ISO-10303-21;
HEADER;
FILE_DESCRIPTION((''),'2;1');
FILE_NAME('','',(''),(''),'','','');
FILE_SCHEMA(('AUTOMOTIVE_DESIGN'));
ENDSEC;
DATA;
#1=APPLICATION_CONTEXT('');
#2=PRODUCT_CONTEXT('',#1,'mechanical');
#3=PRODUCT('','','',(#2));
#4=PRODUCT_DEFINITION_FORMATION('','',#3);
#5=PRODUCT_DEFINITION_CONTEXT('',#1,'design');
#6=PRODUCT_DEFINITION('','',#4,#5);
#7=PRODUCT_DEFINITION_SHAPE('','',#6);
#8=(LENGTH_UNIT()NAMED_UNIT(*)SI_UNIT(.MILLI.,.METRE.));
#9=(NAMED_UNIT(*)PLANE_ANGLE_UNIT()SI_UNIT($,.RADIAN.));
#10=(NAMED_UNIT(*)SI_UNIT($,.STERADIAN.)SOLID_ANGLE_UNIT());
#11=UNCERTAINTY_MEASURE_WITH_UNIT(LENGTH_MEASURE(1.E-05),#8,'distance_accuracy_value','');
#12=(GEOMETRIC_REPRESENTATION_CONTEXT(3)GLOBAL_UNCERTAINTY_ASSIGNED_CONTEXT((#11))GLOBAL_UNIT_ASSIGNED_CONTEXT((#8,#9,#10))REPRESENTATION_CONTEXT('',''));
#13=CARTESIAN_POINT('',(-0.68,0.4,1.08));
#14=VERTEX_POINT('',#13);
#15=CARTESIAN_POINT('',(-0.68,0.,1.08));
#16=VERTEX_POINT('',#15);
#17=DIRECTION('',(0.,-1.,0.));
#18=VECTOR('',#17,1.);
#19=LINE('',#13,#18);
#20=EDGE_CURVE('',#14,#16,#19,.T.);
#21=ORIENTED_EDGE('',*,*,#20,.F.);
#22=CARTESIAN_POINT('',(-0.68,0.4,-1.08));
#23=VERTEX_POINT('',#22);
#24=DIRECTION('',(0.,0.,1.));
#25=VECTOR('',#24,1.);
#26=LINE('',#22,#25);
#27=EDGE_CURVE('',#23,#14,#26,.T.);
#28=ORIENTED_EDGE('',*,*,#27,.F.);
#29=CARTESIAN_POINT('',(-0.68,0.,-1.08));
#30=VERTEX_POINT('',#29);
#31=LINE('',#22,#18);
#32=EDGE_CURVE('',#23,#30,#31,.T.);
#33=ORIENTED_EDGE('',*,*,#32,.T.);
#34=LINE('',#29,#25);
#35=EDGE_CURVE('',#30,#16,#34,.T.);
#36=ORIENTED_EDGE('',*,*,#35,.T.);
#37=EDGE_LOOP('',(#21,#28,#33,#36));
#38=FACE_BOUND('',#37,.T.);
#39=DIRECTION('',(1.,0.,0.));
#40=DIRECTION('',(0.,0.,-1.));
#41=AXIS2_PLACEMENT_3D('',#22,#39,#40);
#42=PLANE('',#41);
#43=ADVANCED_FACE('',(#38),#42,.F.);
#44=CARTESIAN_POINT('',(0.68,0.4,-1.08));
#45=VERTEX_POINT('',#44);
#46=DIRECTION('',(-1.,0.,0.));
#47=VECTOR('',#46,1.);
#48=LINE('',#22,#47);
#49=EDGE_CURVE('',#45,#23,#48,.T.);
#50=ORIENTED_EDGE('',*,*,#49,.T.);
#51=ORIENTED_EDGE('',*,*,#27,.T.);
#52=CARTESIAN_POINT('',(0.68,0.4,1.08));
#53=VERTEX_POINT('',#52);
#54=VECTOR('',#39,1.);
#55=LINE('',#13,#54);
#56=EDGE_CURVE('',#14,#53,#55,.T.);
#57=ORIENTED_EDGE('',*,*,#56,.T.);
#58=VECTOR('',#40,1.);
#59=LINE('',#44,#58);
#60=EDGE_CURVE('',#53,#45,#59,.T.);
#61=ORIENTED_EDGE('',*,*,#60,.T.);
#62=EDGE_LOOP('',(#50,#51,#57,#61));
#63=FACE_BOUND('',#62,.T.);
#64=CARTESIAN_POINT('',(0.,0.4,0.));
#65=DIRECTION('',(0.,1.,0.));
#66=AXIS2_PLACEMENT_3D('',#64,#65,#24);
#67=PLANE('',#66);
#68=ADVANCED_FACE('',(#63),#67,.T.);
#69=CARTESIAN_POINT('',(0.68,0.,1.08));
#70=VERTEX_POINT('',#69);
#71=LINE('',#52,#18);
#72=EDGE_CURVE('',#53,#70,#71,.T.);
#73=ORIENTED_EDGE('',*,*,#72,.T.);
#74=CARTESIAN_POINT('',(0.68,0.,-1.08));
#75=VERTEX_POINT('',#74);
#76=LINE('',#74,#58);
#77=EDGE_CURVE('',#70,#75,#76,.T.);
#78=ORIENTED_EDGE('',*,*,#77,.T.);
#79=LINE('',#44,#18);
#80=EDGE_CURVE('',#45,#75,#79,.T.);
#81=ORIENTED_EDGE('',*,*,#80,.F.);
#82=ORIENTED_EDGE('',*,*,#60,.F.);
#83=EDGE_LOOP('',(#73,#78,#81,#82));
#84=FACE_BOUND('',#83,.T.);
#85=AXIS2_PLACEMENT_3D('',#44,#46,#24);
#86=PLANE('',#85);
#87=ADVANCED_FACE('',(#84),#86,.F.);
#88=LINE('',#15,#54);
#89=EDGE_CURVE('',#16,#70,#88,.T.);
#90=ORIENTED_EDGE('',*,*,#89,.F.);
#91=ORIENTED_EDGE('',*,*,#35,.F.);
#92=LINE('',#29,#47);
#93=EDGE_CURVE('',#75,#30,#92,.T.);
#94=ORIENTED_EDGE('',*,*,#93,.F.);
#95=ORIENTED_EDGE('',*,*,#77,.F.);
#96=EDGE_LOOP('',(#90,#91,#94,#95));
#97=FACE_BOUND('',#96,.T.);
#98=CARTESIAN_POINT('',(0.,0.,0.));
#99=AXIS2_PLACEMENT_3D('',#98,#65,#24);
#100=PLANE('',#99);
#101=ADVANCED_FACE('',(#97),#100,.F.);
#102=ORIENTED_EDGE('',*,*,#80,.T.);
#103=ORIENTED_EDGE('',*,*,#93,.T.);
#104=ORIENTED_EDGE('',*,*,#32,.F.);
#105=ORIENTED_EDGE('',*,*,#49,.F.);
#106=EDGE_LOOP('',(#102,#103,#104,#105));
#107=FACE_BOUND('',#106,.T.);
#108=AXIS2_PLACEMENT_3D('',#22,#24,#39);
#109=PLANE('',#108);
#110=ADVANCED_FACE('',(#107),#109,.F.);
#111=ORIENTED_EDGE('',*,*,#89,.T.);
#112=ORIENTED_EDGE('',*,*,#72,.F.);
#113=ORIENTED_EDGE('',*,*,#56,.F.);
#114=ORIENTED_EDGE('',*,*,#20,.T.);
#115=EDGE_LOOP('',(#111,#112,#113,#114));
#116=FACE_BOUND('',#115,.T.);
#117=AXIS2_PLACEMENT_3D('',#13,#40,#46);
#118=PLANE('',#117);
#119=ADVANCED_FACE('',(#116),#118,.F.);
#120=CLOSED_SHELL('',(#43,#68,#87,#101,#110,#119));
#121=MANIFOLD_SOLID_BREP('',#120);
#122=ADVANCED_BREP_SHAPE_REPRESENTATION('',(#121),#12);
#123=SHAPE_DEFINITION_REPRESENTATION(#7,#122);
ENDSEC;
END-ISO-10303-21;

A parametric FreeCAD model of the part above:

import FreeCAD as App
import Part
import Sketcher
from FreeCAD import Vector

doc = App.newDocument("Part")
body = doc.addObject("PartDesign::Body", "Body")

# Sketch on XZ plane
sketch1 = body.newObject("Sketcher::SketchObject", "Sketch")
sketch1.AttachmentSupport = (doc.getObject("XZ_Plane"), [""])
sketch1.MapMode = "FlatFace"
sketch1.addGeometry([
    Part.LineSegment(Vector(-0.68, -1.08, 0), Vector(-0.68, 1.08, 0)),
    Part.LineSegment(Vector(-0.68, 1.08, 0), Vector(0.68, 1.08, 0)),
    Part.LineSegment(Vector(0.68, 1.08, 0), Vector(0.68, -1.08, 0)),
    Part.LineSegment(Vector(0.68, -1.08, 0), Vector(-0.68, -1.08, 0)),
], False)
sketch1.addConstraint([
    Sketcher.Constraint("Coincident", 0, 2, 1, 1),
    Sketcher.Constraint("Coincident", 1, 2, 2, 1),
    Sketcher.Constraint("Coincident", 2, 2, 3, 1),
    Sketcher.Constraint("Coincident", 3, 2, 0, 1),
    Sketcher.Constraint("Vertical", 0),
    Sketcher.Constraint("Horizontal", 1),
    Sketcher.Constraint("Vertical", 2),
    Sketcher.Constraint("Horizontal", 3),
    Sketcher.Constraint("Symmetric", 0, 2, 2, 2, -1, 1),
    Sketcher.Constraint("DistanceX", 1, 1, 1, 2, 1.36),
    Sketcher.Constraint("DistanceY", 0, 1, 0, 2, 2.16),
])
pad1 = body.newObject("PartDesign::Pad", "Pad")
pad1.Profile = sketch1
pad1.Length = 0.4
pad1.Reversed = True

doc.recompute()
